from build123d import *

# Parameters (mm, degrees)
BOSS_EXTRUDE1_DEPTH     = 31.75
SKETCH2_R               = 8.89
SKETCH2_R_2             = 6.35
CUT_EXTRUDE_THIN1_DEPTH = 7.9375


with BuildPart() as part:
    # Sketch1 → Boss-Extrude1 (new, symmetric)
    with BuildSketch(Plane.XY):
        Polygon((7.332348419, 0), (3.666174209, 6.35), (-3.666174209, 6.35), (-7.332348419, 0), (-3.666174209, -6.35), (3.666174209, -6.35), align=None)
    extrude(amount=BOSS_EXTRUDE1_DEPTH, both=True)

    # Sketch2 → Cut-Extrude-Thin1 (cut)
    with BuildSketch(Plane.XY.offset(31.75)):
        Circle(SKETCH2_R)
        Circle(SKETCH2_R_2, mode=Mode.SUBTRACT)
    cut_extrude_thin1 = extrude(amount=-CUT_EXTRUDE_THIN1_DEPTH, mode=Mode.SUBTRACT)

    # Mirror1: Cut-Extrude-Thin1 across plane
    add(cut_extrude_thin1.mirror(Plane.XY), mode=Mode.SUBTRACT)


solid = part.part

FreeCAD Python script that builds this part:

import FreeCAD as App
import Part
import Sketcher
from FreeCAD import Vector
Q = App.Units.Quantity

doc = App.newDocument("Part")
body = doc.addObject("PartDesign::Body", "Body")

# Sketch on XY plane
sketch1 = body.newObject("Sketcher::SketchObject", "Sketch")
sketch1.AttachmentSupport = (doc.getObject("XY_Plane"), [""])
sketch1.MapMode = "FlatFace"
sketch1.addGeometry(Part.LineSegment(Vector(7, 0, 0), Vector(4, 6, 0)), False)
sketch1.addGeometry(Part.LineSegment(Vector(4, 6, 0), Vector(-4, 6, 0)), False)
sketch1.addGeometry(Part.LineSegment(Vector(-4, 6, 0), Vector(-7, 0, 0)), False)
sketch1.addGeometry(Part.LineSegment(Vector(-7, 0, 0), Vector(-4, -6, 0)), False)
sketch1.addGeometry(Part.LineSegment(Vector(-4, -6, 0), Vector(4, -6, 0)), False)
sketch1.addGeometry(Part.LineSegment(Vector(4, -6, 0), Vector(7, 0, 0)), False)
sketch1.addConstraint(Sketcher.Constraint("Coincident", 0, 2, 1, 1))
sketch1.addConstraint(Sketcher.Constraint("Coincident", 1, 2, 2, 1))
sketch1.addConstraint(Sketcher.Constraint("Coincident", 2, 2, 3, 1))
sketch1.addConstraint(Sketcher.Constraint("Coincident", 3, 2, 4, 1))
sketch1.addConstraint(Sketcher.Constraint("Coincident", 4, 2, 5, 1))
sketch1.addConstraint(Sketcher.Constraint("Coincident", 5, 2, 0, 1))
sketch1.addConstraint(Sketcher.Constraint("Horizontal", 1))
sketch1.addConstraint(Sketcher.Constraint("Horizontal", 4))
sketch1.addConstraint(Sketcher.Constraint("Symmetric", 0, 2, 3, 2, -1, 1))
sketch1.addConstraint(Sketcher.Constraint("Symmetric", 2, 2, 5, 2, -1, 1))
sketch1.addConstraint(Sketcher.Constraint("PointOnObject", 2, 2, -1))
sketch1.addConstraint(Sketcher.Constraint("Parallel", 2, 5))
sketch1.addConstraint(Sketcher.Constraint("Vertical", 1, 2, 3, 2))
sketch1.addConstraint(Sketcher.Constraint("Angle", 0, Q("120 deg")))
sketch1.addConstraint(Sketcher.Constraint("DistanceY", 3, 2, 1, 2, Q("0.5 in")))
sketch1.addConstraint(Sketcher.Constraint("DistanceX", 1, 2, 1, 1, 7.332348))
pad1 = body.newObject("PartDesign::Pad", "Pad")
pad1.Profile = sketch1
pad1.Length = Q("2.5 in")
pad1.Midplane = True

# Sketch on XY plane
sketch2 = body.newObject("Sketcher::SketchObject", "Sketch001")
sketch2.AttachmentSupport = (doc.getObject("XY_Plane"), [""])
sketch2.MapMode = "FlatFace"
sketch2.AttachmentOffset = App.Placement(Vector(0, 0, 1.25 * 25.4), App.Rotation())
sketch2.addGeometry(Part.Circle(Vector(0, 0, 0), Vector(0, 0, 1), 9), False)
sketch2.addGeometry(Part.Circle(Vector(0, 0, 0), Vector(0, 0, 1), 6), False)
sketch2.addConstraint(Sketcher.Constraint("Coincident", 0, 3, -1, 1))
sketch2.addConstraint(Sketcher.Constraint("Coincident", 1, 3, -1, 1))
sketch2.addConstraint(Sketcher.Constraint("Diameter", 0, Q("0.7 in")))
sketch2.addConstraint(Sketcher.Constraint("Diameter", 1, Q("0.5 in")))
pocket1 = body.newObject("PartDesign::Pocket", "Pocket")
pocket1.Profile = sketch2
pocket1.Length = Q("0.3125 in")
doc.recompute()

mirrored = body.newObject("PartDesign::Mirrored", "Mirrored")
mirrored.Originals = [pocket1]
mirrored.MirrorPlane = (doc.getObject("XY_Plane"), [""])
body.Tip = mirrored

doc.recompute()
